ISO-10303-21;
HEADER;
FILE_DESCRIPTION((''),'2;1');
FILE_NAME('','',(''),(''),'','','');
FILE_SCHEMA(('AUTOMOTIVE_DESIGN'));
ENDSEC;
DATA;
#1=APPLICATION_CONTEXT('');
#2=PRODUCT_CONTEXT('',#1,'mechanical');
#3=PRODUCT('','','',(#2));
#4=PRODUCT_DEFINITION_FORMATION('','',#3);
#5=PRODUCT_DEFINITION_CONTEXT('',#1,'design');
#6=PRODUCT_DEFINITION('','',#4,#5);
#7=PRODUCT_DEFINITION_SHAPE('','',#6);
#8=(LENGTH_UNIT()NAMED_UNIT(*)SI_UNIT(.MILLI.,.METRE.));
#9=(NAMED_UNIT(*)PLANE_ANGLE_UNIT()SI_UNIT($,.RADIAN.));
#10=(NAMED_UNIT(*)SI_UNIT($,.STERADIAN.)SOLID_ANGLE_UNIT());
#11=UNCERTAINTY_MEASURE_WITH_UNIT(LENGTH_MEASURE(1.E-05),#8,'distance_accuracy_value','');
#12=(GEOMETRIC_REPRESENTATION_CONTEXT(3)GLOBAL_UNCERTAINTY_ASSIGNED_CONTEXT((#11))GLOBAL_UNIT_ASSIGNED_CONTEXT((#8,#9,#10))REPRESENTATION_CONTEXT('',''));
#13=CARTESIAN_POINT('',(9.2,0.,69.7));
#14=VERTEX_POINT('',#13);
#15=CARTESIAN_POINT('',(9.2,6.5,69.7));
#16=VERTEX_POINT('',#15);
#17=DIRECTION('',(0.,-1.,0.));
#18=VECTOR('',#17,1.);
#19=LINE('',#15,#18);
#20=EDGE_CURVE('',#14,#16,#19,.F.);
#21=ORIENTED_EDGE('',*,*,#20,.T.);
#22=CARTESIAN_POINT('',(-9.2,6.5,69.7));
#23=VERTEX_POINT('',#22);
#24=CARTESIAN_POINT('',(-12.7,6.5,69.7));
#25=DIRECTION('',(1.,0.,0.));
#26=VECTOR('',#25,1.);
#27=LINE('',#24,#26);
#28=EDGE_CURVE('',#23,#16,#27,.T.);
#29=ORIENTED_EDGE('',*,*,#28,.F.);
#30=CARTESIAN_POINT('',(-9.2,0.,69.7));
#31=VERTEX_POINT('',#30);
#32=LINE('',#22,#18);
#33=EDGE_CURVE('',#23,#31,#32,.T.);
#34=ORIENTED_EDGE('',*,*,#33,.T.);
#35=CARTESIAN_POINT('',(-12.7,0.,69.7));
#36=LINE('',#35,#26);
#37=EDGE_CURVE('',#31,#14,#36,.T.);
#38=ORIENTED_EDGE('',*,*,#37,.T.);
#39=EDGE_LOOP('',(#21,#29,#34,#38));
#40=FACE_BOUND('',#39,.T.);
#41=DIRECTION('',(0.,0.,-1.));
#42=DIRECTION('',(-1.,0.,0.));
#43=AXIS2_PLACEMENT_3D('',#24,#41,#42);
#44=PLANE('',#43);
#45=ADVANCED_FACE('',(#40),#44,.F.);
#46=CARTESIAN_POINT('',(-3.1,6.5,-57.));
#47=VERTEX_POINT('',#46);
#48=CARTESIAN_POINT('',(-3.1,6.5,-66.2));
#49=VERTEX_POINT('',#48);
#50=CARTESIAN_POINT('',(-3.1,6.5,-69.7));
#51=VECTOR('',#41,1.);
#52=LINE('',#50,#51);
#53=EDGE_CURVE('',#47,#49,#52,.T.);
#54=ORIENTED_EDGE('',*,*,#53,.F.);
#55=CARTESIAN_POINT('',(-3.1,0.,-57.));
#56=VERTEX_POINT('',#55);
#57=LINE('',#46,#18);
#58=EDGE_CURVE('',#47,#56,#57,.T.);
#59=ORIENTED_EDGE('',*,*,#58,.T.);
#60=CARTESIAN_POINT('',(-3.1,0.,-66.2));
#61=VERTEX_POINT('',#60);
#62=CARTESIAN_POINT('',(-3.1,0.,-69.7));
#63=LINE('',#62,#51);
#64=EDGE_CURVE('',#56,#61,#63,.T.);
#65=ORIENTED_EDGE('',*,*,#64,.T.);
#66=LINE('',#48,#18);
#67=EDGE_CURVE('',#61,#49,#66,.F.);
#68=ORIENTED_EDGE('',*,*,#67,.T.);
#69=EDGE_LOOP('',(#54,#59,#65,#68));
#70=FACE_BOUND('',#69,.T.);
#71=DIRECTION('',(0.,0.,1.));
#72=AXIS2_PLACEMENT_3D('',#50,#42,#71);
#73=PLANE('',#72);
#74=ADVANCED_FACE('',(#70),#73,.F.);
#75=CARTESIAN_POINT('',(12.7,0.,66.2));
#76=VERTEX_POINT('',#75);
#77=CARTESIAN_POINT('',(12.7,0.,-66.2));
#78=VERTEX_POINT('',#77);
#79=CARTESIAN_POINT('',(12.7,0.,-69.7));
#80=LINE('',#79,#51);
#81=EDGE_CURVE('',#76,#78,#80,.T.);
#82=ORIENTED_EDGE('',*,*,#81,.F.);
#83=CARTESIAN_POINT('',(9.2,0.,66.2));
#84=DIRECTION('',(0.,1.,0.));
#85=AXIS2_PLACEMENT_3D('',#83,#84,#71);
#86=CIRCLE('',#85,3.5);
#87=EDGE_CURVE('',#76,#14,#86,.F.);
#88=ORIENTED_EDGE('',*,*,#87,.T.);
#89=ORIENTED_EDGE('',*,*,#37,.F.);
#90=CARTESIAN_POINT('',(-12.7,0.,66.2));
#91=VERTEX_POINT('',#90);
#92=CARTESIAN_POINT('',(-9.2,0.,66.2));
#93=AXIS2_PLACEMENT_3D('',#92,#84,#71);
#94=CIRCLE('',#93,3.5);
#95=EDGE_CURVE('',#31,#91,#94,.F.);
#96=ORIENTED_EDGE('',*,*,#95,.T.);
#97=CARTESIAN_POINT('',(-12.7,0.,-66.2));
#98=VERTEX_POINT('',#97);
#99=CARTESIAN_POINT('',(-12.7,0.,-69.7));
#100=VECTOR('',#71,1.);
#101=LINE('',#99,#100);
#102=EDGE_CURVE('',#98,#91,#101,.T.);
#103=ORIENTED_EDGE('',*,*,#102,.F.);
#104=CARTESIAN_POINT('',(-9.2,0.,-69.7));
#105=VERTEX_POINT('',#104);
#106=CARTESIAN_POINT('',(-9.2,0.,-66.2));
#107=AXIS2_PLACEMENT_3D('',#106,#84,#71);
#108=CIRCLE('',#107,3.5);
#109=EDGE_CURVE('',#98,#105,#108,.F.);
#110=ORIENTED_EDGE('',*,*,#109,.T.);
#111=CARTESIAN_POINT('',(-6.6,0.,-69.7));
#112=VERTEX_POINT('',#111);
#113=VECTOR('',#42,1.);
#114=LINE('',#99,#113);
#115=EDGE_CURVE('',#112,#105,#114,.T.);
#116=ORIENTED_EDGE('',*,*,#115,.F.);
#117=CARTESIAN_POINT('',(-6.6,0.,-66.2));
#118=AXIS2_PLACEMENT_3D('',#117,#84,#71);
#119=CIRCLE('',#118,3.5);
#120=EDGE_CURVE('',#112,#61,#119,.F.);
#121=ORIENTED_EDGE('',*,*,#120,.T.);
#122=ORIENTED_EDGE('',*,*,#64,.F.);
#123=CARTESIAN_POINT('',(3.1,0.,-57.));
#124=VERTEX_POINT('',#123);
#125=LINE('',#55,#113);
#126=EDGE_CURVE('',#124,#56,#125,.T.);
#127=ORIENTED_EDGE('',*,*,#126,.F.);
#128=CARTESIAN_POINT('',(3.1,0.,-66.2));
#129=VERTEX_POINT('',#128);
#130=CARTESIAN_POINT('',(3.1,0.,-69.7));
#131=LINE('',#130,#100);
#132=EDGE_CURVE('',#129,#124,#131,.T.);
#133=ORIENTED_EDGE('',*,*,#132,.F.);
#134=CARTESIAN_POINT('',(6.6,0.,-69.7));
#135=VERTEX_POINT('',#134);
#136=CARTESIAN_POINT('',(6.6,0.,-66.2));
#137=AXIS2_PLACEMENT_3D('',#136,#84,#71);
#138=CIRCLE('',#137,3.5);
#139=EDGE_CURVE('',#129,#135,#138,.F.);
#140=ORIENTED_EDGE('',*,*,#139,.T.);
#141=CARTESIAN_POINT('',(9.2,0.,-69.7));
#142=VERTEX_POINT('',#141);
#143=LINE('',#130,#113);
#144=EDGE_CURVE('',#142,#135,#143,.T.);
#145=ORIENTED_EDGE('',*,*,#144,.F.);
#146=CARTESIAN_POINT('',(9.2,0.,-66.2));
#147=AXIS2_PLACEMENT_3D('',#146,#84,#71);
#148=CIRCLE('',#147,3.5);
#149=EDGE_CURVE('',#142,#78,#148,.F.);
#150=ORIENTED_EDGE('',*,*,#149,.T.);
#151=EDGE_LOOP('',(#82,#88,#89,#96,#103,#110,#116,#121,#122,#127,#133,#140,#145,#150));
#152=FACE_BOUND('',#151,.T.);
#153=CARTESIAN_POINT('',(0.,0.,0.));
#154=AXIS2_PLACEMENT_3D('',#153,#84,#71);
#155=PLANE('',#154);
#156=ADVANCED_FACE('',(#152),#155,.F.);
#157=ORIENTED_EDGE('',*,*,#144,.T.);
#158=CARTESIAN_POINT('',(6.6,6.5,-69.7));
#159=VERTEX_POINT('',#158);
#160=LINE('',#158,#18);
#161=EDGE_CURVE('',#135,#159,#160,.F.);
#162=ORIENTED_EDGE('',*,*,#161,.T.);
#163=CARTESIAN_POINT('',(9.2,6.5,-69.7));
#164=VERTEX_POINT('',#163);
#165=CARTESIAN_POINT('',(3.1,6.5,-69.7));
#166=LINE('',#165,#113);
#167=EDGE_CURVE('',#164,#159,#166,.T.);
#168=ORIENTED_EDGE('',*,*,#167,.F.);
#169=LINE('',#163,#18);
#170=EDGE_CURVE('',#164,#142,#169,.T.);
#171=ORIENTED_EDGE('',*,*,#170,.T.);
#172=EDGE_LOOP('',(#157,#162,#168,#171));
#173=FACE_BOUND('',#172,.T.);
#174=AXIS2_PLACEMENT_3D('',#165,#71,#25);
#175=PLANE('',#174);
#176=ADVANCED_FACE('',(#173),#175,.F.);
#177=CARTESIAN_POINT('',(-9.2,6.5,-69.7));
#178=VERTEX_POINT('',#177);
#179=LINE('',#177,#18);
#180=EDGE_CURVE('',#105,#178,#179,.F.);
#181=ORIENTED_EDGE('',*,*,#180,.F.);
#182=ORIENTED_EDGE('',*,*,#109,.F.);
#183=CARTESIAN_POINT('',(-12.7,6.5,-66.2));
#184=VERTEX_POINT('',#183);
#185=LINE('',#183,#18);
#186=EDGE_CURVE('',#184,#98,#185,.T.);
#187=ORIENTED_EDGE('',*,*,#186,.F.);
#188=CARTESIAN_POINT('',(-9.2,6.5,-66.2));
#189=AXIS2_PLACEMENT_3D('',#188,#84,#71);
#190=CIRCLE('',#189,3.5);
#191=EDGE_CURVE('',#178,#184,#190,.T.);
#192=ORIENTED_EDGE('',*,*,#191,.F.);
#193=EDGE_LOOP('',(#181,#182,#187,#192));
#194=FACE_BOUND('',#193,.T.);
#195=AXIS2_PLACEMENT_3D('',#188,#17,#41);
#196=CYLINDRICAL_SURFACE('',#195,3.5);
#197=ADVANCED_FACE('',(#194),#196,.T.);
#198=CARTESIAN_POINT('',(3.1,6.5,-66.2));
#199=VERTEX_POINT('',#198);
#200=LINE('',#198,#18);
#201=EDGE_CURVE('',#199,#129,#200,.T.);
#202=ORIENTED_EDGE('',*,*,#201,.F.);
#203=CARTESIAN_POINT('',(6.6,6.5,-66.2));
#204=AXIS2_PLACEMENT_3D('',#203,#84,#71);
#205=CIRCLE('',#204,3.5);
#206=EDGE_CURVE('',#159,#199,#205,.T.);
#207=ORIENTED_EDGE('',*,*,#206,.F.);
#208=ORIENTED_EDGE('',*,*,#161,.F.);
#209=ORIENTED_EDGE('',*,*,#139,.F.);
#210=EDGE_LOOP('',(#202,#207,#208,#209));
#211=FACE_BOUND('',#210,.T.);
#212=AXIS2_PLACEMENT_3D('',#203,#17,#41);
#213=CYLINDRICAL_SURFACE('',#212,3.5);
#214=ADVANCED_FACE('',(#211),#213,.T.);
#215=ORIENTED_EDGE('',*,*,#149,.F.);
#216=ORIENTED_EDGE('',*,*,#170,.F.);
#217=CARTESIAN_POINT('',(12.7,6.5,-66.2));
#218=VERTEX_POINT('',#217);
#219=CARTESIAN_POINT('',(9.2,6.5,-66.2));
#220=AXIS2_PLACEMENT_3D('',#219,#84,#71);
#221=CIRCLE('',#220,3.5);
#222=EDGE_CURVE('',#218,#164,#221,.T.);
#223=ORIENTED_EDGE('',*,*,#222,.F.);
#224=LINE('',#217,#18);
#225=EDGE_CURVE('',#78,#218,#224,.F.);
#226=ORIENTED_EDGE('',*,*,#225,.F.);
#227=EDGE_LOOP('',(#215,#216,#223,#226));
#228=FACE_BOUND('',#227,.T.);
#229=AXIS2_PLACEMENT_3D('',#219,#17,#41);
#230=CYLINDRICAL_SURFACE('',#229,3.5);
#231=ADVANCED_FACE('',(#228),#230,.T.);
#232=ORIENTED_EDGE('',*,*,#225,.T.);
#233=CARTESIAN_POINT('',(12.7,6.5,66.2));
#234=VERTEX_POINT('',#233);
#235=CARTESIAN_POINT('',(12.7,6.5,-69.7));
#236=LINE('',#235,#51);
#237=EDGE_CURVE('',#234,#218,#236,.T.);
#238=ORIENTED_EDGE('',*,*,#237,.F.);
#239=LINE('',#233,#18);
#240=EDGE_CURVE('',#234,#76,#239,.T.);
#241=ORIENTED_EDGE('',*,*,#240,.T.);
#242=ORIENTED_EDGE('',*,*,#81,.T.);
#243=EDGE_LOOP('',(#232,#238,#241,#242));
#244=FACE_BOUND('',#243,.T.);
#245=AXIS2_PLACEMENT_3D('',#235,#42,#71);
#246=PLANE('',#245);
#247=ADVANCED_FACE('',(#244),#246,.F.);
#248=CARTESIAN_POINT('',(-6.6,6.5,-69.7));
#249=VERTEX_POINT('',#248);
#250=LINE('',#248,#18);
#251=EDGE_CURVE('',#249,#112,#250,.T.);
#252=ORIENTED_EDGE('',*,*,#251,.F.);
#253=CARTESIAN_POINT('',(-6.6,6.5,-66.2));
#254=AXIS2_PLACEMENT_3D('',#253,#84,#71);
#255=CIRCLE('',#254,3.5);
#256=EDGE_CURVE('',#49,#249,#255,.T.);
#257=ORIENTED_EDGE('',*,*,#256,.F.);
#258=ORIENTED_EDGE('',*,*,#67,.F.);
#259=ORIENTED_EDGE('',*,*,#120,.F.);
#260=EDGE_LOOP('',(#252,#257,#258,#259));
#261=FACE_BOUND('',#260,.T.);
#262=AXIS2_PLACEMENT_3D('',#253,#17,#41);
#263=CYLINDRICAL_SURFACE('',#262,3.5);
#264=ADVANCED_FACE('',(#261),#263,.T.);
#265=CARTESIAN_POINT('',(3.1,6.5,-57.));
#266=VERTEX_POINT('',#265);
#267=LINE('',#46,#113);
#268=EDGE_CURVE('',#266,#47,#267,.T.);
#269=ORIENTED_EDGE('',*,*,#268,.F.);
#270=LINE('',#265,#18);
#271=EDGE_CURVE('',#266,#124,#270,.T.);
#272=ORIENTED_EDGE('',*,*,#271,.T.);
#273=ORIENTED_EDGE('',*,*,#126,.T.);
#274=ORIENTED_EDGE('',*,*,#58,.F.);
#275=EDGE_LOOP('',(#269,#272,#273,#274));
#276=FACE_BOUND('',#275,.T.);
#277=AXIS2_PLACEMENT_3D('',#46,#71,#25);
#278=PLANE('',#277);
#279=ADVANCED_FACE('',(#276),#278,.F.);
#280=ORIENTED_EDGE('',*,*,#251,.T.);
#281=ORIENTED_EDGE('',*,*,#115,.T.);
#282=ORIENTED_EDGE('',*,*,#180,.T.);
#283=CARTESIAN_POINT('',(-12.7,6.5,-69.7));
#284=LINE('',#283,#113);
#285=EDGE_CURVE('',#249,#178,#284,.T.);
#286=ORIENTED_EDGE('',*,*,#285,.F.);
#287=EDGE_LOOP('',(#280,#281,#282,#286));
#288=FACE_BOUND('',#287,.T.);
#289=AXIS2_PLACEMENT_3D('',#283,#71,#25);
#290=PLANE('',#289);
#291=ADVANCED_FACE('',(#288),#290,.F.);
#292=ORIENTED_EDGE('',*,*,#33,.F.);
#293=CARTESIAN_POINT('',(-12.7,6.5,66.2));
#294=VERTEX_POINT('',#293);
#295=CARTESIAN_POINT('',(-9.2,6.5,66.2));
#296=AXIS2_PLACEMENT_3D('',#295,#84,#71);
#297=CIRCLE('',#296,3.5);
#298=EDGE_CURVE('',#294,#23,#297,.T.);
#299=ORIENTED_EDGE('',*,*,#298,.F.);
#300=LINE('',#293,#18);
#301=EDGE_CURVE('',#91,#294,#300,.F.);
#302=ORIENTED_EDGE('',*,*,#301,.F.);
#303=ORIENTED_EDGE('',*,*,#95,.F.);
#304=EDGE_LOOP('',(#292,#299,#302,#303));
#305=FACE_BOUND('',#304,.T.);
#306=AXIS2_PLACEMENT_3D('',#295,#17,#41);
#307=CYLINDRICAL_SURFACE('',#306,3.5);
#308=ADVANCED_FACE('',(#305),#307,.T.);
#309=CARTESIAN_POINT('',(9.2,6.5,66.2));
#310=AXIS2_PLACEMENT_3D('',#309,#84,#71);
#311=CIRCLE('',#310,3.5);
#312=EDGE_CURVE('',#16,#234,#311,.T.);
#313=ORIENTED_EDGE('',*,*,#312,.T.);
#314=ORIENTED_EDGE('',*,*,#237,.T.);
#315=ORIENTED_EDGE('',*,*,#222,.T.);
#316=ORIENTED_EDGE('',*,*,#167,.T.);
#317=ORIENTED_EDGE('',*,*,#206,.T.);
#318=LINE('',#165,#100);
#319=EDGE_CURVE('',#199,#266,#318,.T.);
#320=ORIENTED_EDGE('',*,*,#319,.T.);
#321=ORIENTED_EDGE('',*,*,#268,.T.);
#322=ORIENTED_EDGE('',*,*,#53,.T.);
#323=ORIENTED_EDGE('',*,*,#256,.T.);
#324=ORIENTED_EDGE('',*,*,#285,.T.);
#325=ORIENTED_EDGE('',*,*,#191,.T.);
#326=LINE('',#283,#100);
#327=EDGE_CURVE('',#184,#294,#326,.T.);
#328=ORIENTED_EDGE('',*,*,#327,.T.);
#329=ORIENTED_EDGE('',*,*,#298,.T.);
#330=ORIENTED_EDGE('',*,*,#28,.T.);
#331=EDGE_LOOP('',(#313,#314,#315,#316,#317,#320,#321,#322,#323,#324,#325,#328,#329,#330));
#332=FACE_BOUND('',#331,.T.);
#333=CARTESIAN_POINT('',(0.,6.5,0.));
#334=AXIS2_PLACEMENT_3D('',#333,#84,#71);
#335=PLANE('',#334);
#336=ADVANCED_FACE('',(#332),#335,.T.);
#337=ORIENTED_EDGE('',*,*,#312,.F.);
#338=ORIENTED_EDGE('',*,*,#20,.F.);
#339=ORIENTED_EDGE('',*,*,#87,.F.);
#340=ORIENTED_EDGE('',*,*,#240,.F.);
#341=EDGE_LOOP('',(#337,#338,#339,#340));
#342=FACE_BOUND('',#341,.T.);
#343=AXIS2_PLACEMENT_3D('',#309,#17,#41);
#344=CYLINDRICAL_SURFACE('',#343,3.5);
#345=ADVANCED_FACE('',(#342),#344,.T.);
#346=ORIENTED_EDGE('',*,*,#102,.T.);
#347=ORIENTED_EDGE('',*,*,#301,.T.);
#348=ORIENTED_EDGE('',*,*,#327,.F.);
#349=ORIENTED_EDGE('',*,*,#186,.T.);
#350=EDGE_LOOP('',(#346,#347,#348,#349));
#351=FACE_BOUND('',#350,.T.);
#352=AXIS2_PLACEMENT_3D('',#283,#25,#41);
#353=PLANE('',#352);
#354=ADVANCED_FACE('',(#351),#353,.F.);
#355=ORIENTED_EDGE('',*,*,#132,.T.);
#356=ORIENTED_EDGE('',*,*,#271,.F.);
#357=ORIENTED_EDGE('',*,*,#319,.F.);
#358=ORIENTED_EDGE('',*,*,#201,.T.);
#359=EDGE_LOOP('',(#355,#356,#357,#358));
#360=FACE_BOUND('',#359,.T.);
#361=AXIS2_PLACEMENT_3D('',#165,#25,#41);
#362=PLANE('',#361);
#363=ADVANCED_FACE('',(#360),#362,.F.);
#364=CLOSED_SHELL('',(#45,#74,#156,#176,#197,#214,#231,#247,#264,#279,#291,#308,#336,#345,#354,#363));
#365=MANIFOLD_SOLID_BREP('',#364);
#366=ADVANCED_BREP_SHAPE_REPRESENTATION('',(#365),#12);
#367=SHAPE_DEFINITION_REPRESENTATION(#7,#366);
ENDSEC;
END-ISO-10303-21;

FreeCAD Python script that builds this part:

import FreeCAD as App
import Part
import Sketcher
Q = App.Units.Quantity


def edges_at(feature, points):
    """Names of the edges that pass closest to the given points."""
    edges = feature.Shape.Edges
    near = lambda p: min(range(len(edges)), key=lambda i: edges[i].distToShape(Part.Vertex(*p))[0])
    return sorted({f"Edge{near(p) + 1}" for p in points})

doc = App.newDocument("Part")
body = doc.addObject("PartDesign::Body", "Body")

# Sketch on XZ plane
sketch1 = body.newObject("Sketcher::SketchObject", "Sketch")
sketch1.AttachmentSupport = (doc.getObject("XZ_Plane"), [""])
sketch1.MapMode = "FlatFace"
sketch1.addGeometry([
    Part.LineSegment(App.Vector(12.7, -69.7, 0), App.Vector(3.1, -69.7, 0)),  # 0
    Part.LineSegment(App.Vector(3.1, -69.7, 0), App.Vector(3.1, -57, 0)),  # 1
    Part.LineSegment(App.Vector(3.1, -57, 0), App.Vector(-3.1, -57, 0)),  # 2
    Part.LineSegment(App.Vector(-3.1, -57, 0), App.Vector(-3.1, -69.7, 0)),  # 3
    Part.LineSegment(App.Vector(-3.1, -69.7, 0), App.Vector(-12.7, -69.7, 0)),  # 4
    Part.LineSegment(App.Vector(-12.7, -69.7, 0), App.Vector(-12.7, 69.7, 0)),  # 5
    Part.LineSegment(App.Vector(-12.7, 69.7, 0), App.Vector(12.7, 69.7, 0)),  # 6
    Part.LineSegment(App.Vector(12.7, 69.7, 0), App.Vector(12.7, -69.7, 0)),  # 7
], False)
sketch1.addConstraint([
    Sketcher.Constraint("Coincident", 0, 2, 1, 1),
    Sketcher.Constraint("Coincident", 1, 2, 2, 1),
    Sketcher.Constraint("Coincident", 2, 2, 3, 1),
    Sketcher.Constraint("Coincident", 3, 2, 4, 1),
    Sketcher.Constraint("Coincident", 4, 2, 5, 1),
    Sketcher.Constraint("Coincident", 5, 2, 6, 1),
    Sketcher.Constraint("Coincident", 6, 2, 7, 1),
    Sketcher.Constraint("Coincident", 7, 2, 0, 1),
    Sketcher.Constraint("Horizontal", 0),
    Sketcher.Constraint("Vertical", 1),
    Sketcher.Constraint("Horizontal", 2),
    Sketcher.Constraint("Vertical", 3),
    Sketcher.Constraint("Horizontal", 4),
    Sketcher.Constraint("Vertical", 5),
    Sketcher.Constraint("Horizontal", 6),
    Sketcher.Constraint("Vertical", 7),
    Sketcher.Constraint("Symmetric", 4, 2, 6, 2, -1, 1),
    Sketcher.Constraint("Symmetric", 0, 2, 3, 2, -2),
    Sketcher.Constraint("DistanceX", 0, 2, 0, 1, Q("9.6 mm")),
    Sketcher.Constraint("DistanceX", 2, 2, 2, 1, Q("6.2 mm")),
    Sketcher.Constraint("DistanceY", 1, 1, 1, 2, Q("12.7 mm")),
    Sketcher.Constraint("DistanceY", 5, 1, 5, 2, Q("139.4 mm")),
])
pad1 = body.newObject("PartDesign::Pad", "Pad")
pad1.Profile = sketch1
pad1.Length = 6.5
pad1.Reversed = True
doc.recompute()

fillet = body.newObject("PartDesign::Fillet", "Fillet")
fillet.Base = (pad1, edges_at(pad1, [
    (12.7, 3.25, 69.7),
    (-12.7, 3.25, 69.7),
    (-12.7, 3.25, -69.7),
    (-3.1, 3.25, -69.7),
    (3.1, 3.25, -69.7),
    (12.7, 3.25, -69.7),
]))
fillet.Radius = 3.5

doc.recompute()
